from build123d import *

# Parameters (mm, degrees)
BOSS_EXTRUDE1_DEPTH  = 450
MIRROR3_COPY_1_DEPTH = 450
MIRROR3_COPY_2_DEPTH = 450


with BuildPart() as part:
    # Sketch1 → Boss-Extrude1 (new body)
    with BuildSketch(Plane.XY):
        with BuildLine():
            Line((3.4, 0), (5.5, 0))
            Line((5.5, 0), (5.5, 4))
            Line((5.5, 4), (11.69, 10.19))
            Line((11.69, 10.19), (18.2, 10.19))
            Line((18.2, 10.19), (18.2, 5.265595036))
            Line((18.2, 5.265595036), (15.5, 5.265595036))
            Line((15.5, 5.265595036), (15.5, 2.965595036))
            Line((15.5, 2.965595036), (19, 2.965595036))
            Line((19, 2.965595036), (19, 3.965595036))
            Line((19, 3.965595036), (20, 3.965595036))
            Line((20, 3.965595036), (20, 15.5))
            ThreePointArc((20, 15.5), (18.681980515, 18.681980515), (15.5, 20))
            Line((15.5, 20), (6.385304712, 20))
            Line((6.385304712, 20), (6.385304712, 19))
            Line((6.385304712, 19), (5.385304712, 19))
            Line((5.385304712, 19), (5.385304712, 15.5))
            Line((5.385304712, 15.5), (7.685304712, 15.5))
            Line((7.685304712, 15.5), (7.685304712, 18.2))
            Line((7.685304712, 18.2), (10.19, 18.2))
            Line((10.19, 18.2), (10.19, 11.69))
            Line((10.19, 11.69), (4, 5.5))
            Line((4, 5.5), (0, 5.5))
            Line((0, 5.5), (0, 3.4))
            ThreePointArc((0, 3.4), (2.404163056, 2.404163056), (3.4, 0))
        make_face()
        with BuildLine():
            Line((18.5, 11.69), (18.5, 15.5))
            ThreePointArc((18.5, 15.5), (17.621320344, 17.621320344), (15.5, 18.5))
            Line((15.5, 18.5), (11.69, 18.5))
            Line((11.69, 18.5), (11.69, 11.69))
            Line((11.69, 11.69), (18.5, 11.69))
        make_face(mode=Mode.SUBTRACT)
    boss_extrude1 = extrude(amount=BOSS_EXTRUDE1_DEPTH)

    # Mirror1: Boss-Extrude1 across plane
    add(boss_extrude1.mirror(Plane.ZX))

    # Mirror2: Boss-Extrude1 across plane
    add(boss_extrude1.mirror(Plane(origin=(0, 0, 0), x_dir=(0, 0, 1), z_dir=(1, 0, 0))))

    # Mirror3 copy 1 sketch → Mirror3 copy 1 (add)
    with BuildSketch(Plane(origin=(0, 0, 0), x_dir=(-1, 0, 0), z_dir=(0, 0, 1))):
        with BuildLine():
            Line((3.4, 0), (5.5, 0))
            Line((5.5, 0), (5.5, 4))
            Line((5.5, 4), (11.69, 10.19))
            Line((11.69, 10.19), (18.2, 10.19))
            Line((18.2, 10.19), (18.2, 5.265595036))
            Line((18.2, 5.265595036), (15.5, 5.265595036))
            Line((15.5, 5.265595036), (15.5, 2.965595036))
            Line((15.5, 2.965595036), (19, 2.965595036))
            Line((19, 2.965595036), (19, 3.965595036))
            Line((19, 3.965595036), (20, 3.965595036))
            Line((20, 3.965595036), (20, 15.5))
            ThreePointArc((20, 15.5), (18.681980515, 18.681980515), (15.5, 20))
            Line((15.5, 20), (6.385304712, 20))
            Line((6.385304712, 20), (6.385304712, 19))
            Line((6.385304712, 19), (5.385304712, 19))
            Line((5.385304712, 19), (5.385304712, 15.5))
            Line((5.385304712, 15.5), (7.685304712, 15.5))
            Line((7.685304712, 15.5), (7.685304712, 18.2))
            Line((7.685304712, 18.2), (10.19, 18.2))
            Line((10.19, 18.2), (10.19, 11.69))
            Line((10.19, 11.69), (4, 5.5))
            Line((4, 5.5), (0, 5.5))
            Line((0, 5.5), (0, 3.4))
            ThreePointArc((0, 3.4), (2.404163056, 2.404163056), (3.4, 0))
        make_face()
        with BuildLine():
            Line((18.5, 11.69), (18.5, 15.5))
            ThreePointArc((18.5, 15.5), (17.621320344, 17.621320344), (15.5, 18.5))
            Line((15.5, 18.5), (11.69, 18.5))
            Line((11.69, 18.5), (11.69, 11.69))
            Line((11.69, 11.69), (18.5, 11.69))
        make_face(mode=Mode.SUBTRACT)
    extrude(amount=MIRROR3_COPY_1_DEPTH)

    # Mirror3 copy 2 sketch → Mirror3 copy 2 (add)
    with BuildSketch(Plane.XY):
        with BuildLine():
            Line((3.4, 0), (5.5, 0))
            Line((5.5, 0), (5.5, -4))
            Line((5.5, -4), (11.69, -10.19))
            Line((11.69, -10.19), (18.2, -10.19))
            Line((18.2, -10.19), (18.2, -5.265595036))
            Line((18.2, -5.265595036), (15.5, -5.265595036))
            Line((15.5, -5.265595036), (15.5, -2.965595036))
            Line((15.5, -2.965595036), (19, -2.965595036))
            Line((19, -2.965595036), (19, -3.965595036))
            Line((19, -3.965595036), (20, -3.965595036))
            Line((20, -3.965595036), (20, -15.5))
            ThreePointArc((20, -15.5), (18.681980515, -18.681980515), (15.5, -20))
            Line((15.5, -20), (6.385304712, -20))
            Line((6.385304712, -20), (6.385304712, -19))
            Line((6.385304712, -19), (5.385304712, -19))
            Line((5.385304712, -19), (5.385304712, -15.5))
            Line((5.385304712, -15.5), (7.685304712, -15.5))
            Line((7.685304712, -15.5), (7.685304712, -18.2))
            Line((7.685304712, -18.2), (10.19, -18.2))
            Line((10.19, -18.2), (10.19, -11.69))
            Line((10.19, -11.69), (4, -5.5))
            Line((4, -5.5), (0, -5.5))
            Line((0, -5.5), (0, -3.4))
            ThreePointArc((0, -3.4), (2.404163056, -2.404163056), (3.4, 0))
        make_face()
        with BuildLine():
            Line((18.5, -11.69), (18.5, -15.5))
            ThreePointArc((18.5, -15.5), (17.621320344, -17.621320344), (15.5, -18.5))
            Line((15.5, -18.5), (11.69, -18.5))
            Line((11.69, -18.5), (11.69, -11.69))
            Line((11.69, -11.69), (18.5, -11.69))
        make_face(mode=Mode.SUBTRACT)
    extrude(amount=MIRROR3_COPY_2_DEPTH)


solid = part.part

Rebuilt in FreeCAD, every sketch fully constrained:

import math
import FreeCAD as App
import Part
import Sketcher
Q = App.Units.Quantity

doc = App.newDocument("Part")
params = doc.addObject("Spreadsheet::Sheet", "Params")
for row, (alias, value) in enumerate([
    ("sketch1_radius", "3 mm"),
    ("sketch1_radius2", "4.5 mm"),
    ("sketch1_radius3", "3.4 mm"),
    ("sketch1_width", "1 mm"),
    ("sketch1_width2", "4 mm"),
    ("pad1_length", "450 mm"),
    ("sketch2_radius", "3 mm"),
    ("sketch2_radius2", "4.5 mm"),
    ("sketch2_radius3", "3.4 mm"),
    ("sketch2_width", "1 mm"),
    ("sketch2_width2", "4 mm"),
    ("pad2_length", "450 mm"),
    ("sketch3_radius", "3 mm"),
    ("sketch3_radius2", "3.4 mm"),
    ("sketch3_radius3", "4.5 mm"),
    ("sketch3_width", "4 mm"),
    ("sketch3_width2", "1 mm"),
    ("pad3_length", "450 mm"),
], start=1):
    params.set(f"A{row}", alias)
    params.set(f"B{row}", "=" + value)
    params.setAlias(f"B{row}", alias)

body = doc.addObject("PartDesign::Body", "Body")

# Sketch on XY plane
sketch1 = body.newObject("Sketcher::SketchObject", "Sketch")
sketch1.AttachmentSupport = (doc.getObject("XY_Plane"), [""])
sketch1.MapMode = "FlatFace"
sketch1.addGeometry([
    Part.LineSegment(App.Vector(3.4, 0, 0), App.Vector(5.5, 0, 0)),  # 0
    Part.LineSegment(App.Vector(5.5, 0, 0), App.Vector(5.5, 4, 0)),  # 1
    Part.LineSegment(App.Vector(5.5, 4, 0), App.Vector(11.69, 10.19, 0)),  # 2
    Part.LineSegment(App.Vector(11.69, 10.19, 0), App.Vector(18.2, 10.19, 0)),  # 3
    Part.LineSegment(App.Vector(18.2, 10.19, 0), App.Vector(18.2, 5.265595, 0)),  # 4
    Part.LineSegment(App.Vector(18.2, 5.265595, 0), App.Vector(15.5, 5.265595, 0)),  # 5
    Part.LineSegment(App.Vector(15.5, 5.265595, 0), App.Vector(15.5, 2.965595, 0)),  # 6
    Part.LineSegment(App.Vector(15.5, 2.965595, 0), App.Vector(19, 2.965595, 0)),  # 7
    Part.LineSegment(App.Vector(19, 2.965595, 0), App.Vector(19, 3.965595, 0)),  # 8
    Part.LineSegment(App.Vector(19, 3.965595, 0), App.Vector(20, 3.965595, 0)),  # 9
    Part.LineSegment(App.Vector(20, 3.965595, 0), App.Vector(20, 15.5, 0)),  # 10
    Part.ArcOfCircle(Part.Circle(App.Vector(15.5, 15.5, 0), App.Vector(0, 0, 1), 4.5), math.radians(0), math.radians(90)),  # 11
    Part.LineSegment(App.Vector(15.5, 20, 0), App.Vector(6.385305, 20, 0)),  # 12
    Part.LineSegment(App.Vector(6.385305, 20, 0), App.Vector(6.385305, 19, 0)),  # 13
    Part.LineSegment(App.Vector(6.385305, 19, 0), App.Vector(5.385305, 19, 0)),  # 14
    Part.LineSegment(App.Vector(5.385305, 19, 0), App.Vector(5.385305, 15.5, 0)),  # 15
    Part.LineSegment(App.Vector(5.385305, 15.5, 0), App.Vector(7.685305, 15.5, 0)),  # 16
    Part.LineSegment(App.Vector(7.685305, 15.5, 0), App.Vector(7.685305, 18.2, 0)),  # 17
    Part.LineSegment(App.Vector(7.685305, 18.2, 0), App.Vector(10.19, 18.2, 0)),  # 18
    Part.LineSegment(App.Vector(10.19, 18.2, 0), App.Vector(10.19, 11.69, 0)),  # 19
    Part.LineSegment(App.Vector(10.19, 11.69, 0), App.Vector(4, 5.5, 0)),  # 20
    Part.LineSegment(App.Vector(4, 5.5, 0), App.Vector(0, 5.5, 0)),  # 21
    Part.LineSegment(App.Vector(0, 5.5, 0), App.Vector(0, 3.4, 0)),  # 22
    Part.ArcOfCircle(Part.Circle(App.Vector(0, 0, 0), App.Vector(0, 0, 1), 3.4), math.radians(0), math.radians(90)),  # 23
    Part.LineSegment(App.Vector(18.5, 15.5, 0), App.Vector(18.5, 11.69, 0)),  # 24
    Part.LineSegment(App.Vector(18.5, 11.69, 0), App.Vector(11.69, 11.69, 0)),  # 25
    Part.LineSegment(App.Vector(11.69, 11.69, 0), App.Vector(11.69, 18.5, 0)),  # 26
    Part.LineSegment(App.Vector(11.69, 18.5, 0), App.Vector(15.5, 18.5, 0)),  # 27
    Part.ArcOfCircle(Part.Circle(App.Vector(15.5, 15.5, 0), App.Vector(0, 0, 1), 3), math.radians(0), math.radians(90)),  # 28
], False)
sketch1.addConstraint([
    Sketcher.Constraint("Coincident", 0, 2, 1, 1),
    Sketcher.Constraint("Coincident", 1, 2, 2, 1),
    Sketcher.Constraint("Coincident", 2, 2, 3, 1),
    Sketcher.Constraint("Coincident", 3, 2, 4, 1),
    Sketcher.Constraint("Coincident", 4, 2, 5, 1),
    Sketcher.Constraint("Coincident", 5, 2, 6, 1),
    Sketcher.Constraint("Coincident", 6, 2, 7, 1),
    Sketcher.Constraint("Coincident", 7, 2, 8, 1),
    Sketcher.Constraint("Coincident", 8, 2, 9, 1),
    Sketcher.Constraint("Coincident", 9, 2, 10, 1),
    Sketcher.Constraint("Tangent", 10, 2, 11, 1),
    Sketcher.Constraint("Tangent", 11, 2, 12, 1),
    Sketcher.Constraint("Coincident", 12, 2, 13, 1),
    Sketcher.Constraint("Coincident", 13, 2, 14, 1),
    Sketcher.Constraint("Coincident", 14, 2, 15, 1),
    Sketcher.Constraint("Coincident", 15, 2, 16, 1),
    Sketcher.Constraint("Coincident", 16, 2, 17, 1),
    Sketcher.Constraint("Coincident", 17, 2, 18, 1),
    Sketcher.Constraint("Coincident", 18, 2, 19, 1),
    Sketcher.Constraint("Coincident", 19, 2, 20, 1),
    Sketcher.Constraint("Coincident", 20, 2, 21, 1),
    Sketcher.Constraint("Coincident", 21, 2, 22, 1),
    Sketcher.Constraint("Coincident", 22, 2, 23, 2),
    Sketcher.Constraint("Coincident", 23, 1, 0, 1),
    Sketcher.Constraint("Coincident", 24, 2, 25, 1),
    Sketcher.Constraint("Coincident", 25, 2, 26, 1),
    Sketcher.Constraint("Coincident", 26, 2, 27, 1),
    Sketcher.Constraint("Tangent", 27, 2, 28, 2),
    Sketcher.Constraint("Tangent", 28, 1, 24, 1),
    Sketcher.Constraint("Horizontal", 0),
    Sketcher.Constraint("Vertical", 1),
    Sketcher.Constraint("Horizontal", 3),
    Sketcher.Constraint("Vertical", 4),
    Sketcher.Constraint("Horizontal", 5),
    Sketcher.Constraint("Vertical", 6),
    Sketcher.Constraint("Horizontal", 7),
    Sketcher.Constraint("Vertical", 8),
    Sketcher.Constraint("Horizontal", 9),
    Sketcher.Constraint("Vertical", 10),
    Sketcher.Constraint("Horizontal", 12),
    Sketcher.Constraint("Vertical", 13),
    Sketcher.Constraint("Horizontal", 14),
    Sketcher.Constraint("Vertical", 15),
    Sketcher.Constraint("Horizontal", 16),
    Sketcher.Constraint("Vertical", 17),
    Sketcher.Constraint("Horizontal", 18),
    Sketcher.Constraint("Vertical", 19),
    Sketcher.Constraint("Horizontal", 21),
    Sketcher.Constraint("Vertical", 22),
    Sketcher.Constraint("Vertical", 24),
    Sketcher.Constraint("Horizontal", 25),
    Sketcher.Constraint("Vertical", 26),
    Sketcher.Constraint("Horizontal", 27),
    Sketcher.Constraint("Coincident", 23, 3, -1, 1),
    Sketcher.Constraint("Coincident", 28, 3, 11, 3),
    Sketcher.Constraint("PointOnObject", 0, 2, -1),
    Sketcher.Constraint("PointOnObject", 21, 2, -2),
    Sketcher.Constraint("Parallel", 2, 20),
    Sketcher.Constraint("Horizontal", 10, 2, 15, 2),
    Sketcher.Constraint("Horizontal", 19, 2, 24, 2),
    Sketcher.Constraint("Vertical", 28, 3, 5, 2),
    Sketcher.Constraint("Vertical", 2, 2, 25, 2),
    Sketcher.Constraint("Equal", 9, 14),
    Sketcher.Constraint("Equal", 21, 1),
    Sketcher.Constraint("Equal", 16, 6),
    Sketcher.Constraint("Equal", 14, 8),
    Sketcher.Constraint("Equal", 8, 13),
    Sketcher.Constraint("Equal", 5, 17),
    Sketcher.Constraint("Equal", 3, 19),
    Sketcher.Constraint("Equal", 0, 22),
    Sketcher.Constraint("Equal", 2, 20),
    Sketcher.Constraint("Radius", 28, 3.0),
    Sketcher.Constraint("Radius", 11, 4.5),
    Sketcher.Constraint("Radius", 23, 3.4),
    Sketcher.Constraint("DistanceX", 9, 1, 9, 2, 1.0),
    Sketcher.Constraint("DistanceX", 21, 2, 21, 1, 4.0),
    Sketcher.Constraint("Angle", 2, Q("45 deg")),
    Sketcher.Constraint("DistanceX", 0, 1, 0, 2, 2.1),
    Sketcher.Constraint("DistanceX", 5, 2, 5, 1, 2.7),
    Sketcher.Constraint("DistanceX", 16, 1, 16, 2, 2.3),
    Sketcher.Constraint("DistanceX", -1, 1, 7, 2, 19.0),
    Sketcher.Constraint("DistanceX", 3, 1, 3, 2, 6.51),
    Sketcher.Constraint("DistanceX", 12, 2, 12, 1, 9.114695),
    Sketcher.Constraint("DistanceY", 4, 2, 4, 1, 4.924405),
])
sketch1.setExpression("Constraints[71]", "Params.sketch1_radius")
sketch1.setExpression("Constraints[72]", "Params.sketch1_radius2")
sketch1.setExpression("Constraints[73]", "Params.sketch1_radius3")
sketch1.setExpression("Constraints[74]", "Params.sketch1_width")
sketch1.setExpression("Constraints[75]", "Params.sketch1_width2")
pad1 = body.newObject("PartDesign::Pad", "Pad")
pad1.Profile = sketch1
pad1.setExpression("Length", "Params.pad1_length")
doc.recompute()

mirrored = body.newObject("PartDesign::Mirrored", "Mirrored")
mirrored.Originals = [pad1]
mirrored.MirrorPlane = (doc.getObject("XZ_Plane"), [""])
body.Tip = mirrored
doc.recompute()

mirrored2 = body.newObject("PartDesign::Mirrored", "Mirrored001")
mirrored2.Originals = [pad1]
mirrored2.MirrorPlane = (doc.getObject("YZ_Plane"), [""])
body.Tip = mirrored2

# Sketch on XY plane
sketch2 = body.newObject("Sketcher::SketchObject", "Sketch001")
sketch2.AttachmentSupport = (doc.getObject("XY_Plane"), [""])
sketch2.MapMode = "FlatFace"
sketch2.addGeometry([
    Part.LineSegment(App.Vector(-3.4, 0, 0), App.Vector(-5.5, 0, 0)),  # 0
    Part.LineSegment(App.Vector(-5.5, 0, 0), App.Vector(-5.5, -4, 0)),  # 1
    Part.LineSegment(App.Vector(-5.5, -4, 0), App.Vector(-11.69, -10.19, 0)),  # 2
    Part.LineSegment(App.Vector(-11.69, -10.19, 0), App.Vector(-18.2, -10.19, 0)),  # 3
    Part.LineSegment(App.Vector(-18.2, -10.19, 0), App.Vector(-18.2, -5.265595, 0)),  # 4
    Part.LineSegment(App.Vector(-18.2, -5.265595, 0), App.Vector(-15.5, -5.265595, 0)),  # 5
    Part.LineSegment(App.Vector(-15.5, -5.265595, 0), App.Vector(-15.5, -2.965595, 0)),  # 6
    Part.LineSegment(App.Vector(-15.5, -2.965595, 0), App.Vector(-19, -2.965595, 0)),  # 7
    Part.LineSegment(App.Vector(-19, -2.965595, 0), App.Vector(-19, -3.965595, 0)),  # 8
    Part.LineSegment(App.Vector(-19, -3.965595, 0), App.Vector(-20, -3.965595, 0)),  # 9
    Part.LineSegment(App.Vector(-20, -3.965595, 0), App.Vector(-20, -15.5, 0)),  # 10
    Part.ArcOfCircle(Part.Circle(App.Vector(-15.5, -15.5, 0), App.Vector(0, 0, 1), 4.5), math.radians(-180), math.radians(-90)),  # 11
    Part.LineSegment(App.Vector(-15.5, -20, 0), App.Vector(-6.385305, -20, 0)),  # 12
    Part.LineSegment(App.Vector(-6.385305, -20, 0), App.Vector(-6.385305, -19, 0)),  # 13
    Part.LineSegment(App.Vector(-6.385305, -19, 0), App.Vector(-5.385305, -19, 0)),  # 14
    Part.LineSegment(App.Vector(-5.385305, -19, 0), App.Vector(-5.385305, -15.5, 0)),  # 15
    Part.LineSegment(App.Vector(-5.385305, -15.5, 0), App.Vector(-7.685305, -15.5, 0)),  # 16
    Part.LineSegment(App.Vector(-7.685305, -15.5, 0), App.Vector(-7.685305, -18.2, 0)),  # 17
    Part.LineSegment(App.Vector(-7.685305, -18.2, 0), App.Vector(-10.19, -18.2, 0)),  # 18
    Part.LineSegment(App.Vector(-10.19, -18.2, 0), App.Vector(-10.19, -11.69, 0)),  # 19
    Part.LineSegment(App.Vector(-10.19, -11.69, 0), App.Vector(-4, -5.5, 0)),  # 20
    Part.LineSegment(App.Vector(-4, -5.5, 0), App.Vector(0, -5.5, 0)),  # 21
    Part.LineSegment(App.Vector(0, -5.5, 0), App.Vector(0, -3.4, 0)),  # 22
    Part.ArcOfCircle(Part.Circle(App.Vector(0, 0, 0), App.Vector(0, 0, 1), 3.4), math.radians(180), math.radians(270)),  # 23
    Part.LineSegment(App.Vector(-18.5, -15.5, 0), App.Vector(-18.5, -11.69, 0)),  # 24
    Part.LineSegment(App.Vector(-18.5, -11.69, 0), App.Vector(-11.69, -11.69, 0)),  # 25
    Part.LineSegment(App.Vector(-11.69, -11.69, 0), App.Vector(-11.69, -18.5, 0)),  # 26
    Part.LineSegment(App.Vector(-11.69, -18.5, 0), App.Vector(-15.5, -18.5, 0)),  # 27
    Part.ArcOfCircle(Part.Circle(App.Vector(-15.5, -15.5, 0), App.Vector(0, 0, 1), 3), math.radians(180), math.radians(270)),  # 28
], False)
sketch2.addConstraint([
    Sketcher.Constraint("Coincident", 0, 2, 1, 1),
    Sketcher.Constraint("Coincident", 1, 2, 2, 1),
    Sketcher.Constraint("Coincident", 2, 2, 3, 1),
    Sketcher.Constraint("Coincident", 3, 2, 4, 1),
    Sketcher.Constraint("Coincident", 4, 2, 5, 1),
    Sketcher.Constraint("Coincident", 5, 2, 6, 1),
    Sketcher.Constraint("Coincident", 6, 2, 7, 1),
    Sketcher.Constraint("Coincident", 7, 2, 8, 1),
    Sketcher.Constraint("Coincident", 8, 2, 9, 1),
    Sketcher.Constraint("Coincident", 9, 2, 10, 1),
    Sketcher.Constraint("Tangent", 10, 2, 11, 1),
    Sketcher.Constraint("Tangent", 11, 2, 12, 1),
    Sketcher.Constraint("Coincident", 12, 2, 13, 1),
    Sketcher.Constraint("Coincident", 13, 2, 14, 1),
    Sketcher.Constraint("Coincident", 14, 2, 15, 1),
    Sketcher.Constraint("Coincident", 15, 2, 16, 1),
    Sketcher.Constraint("Coincident", 16, 2, 17, 1),
    Sketcher.Constraint("Coincident", 17, 2, 18, 1),
    Sketcher.Constraint("Coincident", 18, 2, 19, 1),
    Sketcher.Constraint("Coincident", 19, 2, 20, 1),
    Sketcher.Constraint("Coincident", 20, 2, 21, 1),
    Sketcher.Constraint("Coincident", 21, 2, 22, 1),
    Sketcher.Constraint("Coincident", 22, 2, 23, 2),
    Sketcher.Constraint("Coincident", 23, 1, 0, 1),
    Sketcher.Constraint("Coincident", 24, 2, 25, 1),
    Sketcher.Constraint("Coincident", 25, 2, 26, 1),
    Sketcher.Constraint("Coincident", 26, 2, 27, 1),
    Sketcher.Constraint("Tangent", 27, 2, 28, 2),
    Sketcher.Constraint("Tangent", 28, 1, 24, 1),
    Sketcher.Constraint("Horizontal", 0),
    Sketcher.Constraint("Vertical", 1),
    Sketcher.Constraint("Horizontal", 3),
    Sketcher.Constraint("Vertical", 4),
    Sketcher.Constraint("Horizontal", 5),
    Sketcher.Constraint("Vertical", 6),
    Sketcher.Constraint("Horizontal", 7),
    Sketcher.Constraint("Vertical", 8),
    Sketcher.Constraint("Horizontal", 9),
    Sketcher.Constraint("Vertical", 10),
    Sketcher.Constraint("Horizontal", 12),
    Sketcher.Constraint("Vertical", 13),
    Sketcher.Constraint("Horizontal", 14),
    Sketcher.Constraint("Vertical", 15),
    Sketcher.Constraint("Horizontal", 16),
    Sketcher.Constraint("Vertical", 17),
    Sketcher.Constraint("Horizontal", 18),
    Sketcher.Constraint("Vertical", 19),
    Sketcher.Constraint("Horizontal", 21),
    Sketcher.Constraint("Vertical", 22),
    Sketcher.Constraint("Vertical", 24),
    Sketcher.Constraint("Horizontal", 25),
    Sketcher.Constraint("Vertical", 26),
    Sketcher.Constraint("Horizontal", 27),
    Sketcher.Constraint("Coincident", 23, 3, -1, 1),
    Sketcher.Constraint("Coincident", 28, 3, 11, 3),
    Sketcher.Constraint("PointOnObject", 0, 2, -1),
    Sketcher.Constraint("PointOnObject", 21, 2, -2),
    Sketcher.Constraint("Parallel", 2, 20),
    Sketcher.Constraint("Horizontal", 10, 2, 15, 2),
    Sketcher.Constraint("Horizontal", 19, 2, 24, 2),
    Sketcher.Constraint("Vertical", 28, 3, 5, 2),
    Sketcher.Constraint("Vertical", 2, 2, 25, 2),
    Sketcher.Constraint("Equal", 9, 14),
    Sketcher.Constraint("Equal", 21, 1),
    Sketcher.Constraint("Equal", 16, 6),
    Sketcher.Constraint("Equal", 14, 8),
    Sketcher.Constraint("Equal", 8, 13),
    Sketcher.Constraint("Equal", 5, 17),
    Sketcher.Constraint("Equal", 3, 19),
    Sketcher.Constraint("Equal", 0, 22),
    Sketcher.Constraint("Equal", 2, 20),
    Sketcher.Constraint("Radius", 28, 3.0),
    Sketcher.Constraint("Radius", 11, 4.5),
    Sketcher.Constraint("Radius", 23, 3.4),
    Sketcher.Constraint("DistanceX", 9, 2, 9, 1, 1.0),
    Sketcher.Constraint("DistanceX", 21, 1, 21, 2, 4.0),
    Sketcher.Constraint("Angle", 2, Q("-135 deg")),
    Sketcher.Constraint("DistanceX", 0, 2, 0, 1, 2.1),
    Sketcher.Constraint("DistanceX", 5, 1, 5, 2, 2.7),
    Sketcher.Constraint("DistanceX", 16, 2, 16, 1, 2.3),
    Sketcher.Constraint("DistanceX", 7, 2, -1, 1, 19.0),
    Sketcher.Constraint("DistanceX", 3, 2, 3, 1, 6.51),
    Sketcher.Constraint("DistanceX", 12, 1, 12, 2, 9.114695),
    Sketcher.Constraint("DistanceY", 4, 1, 4, 2, 4.924405),
])
sketch2.setExpression("Constraints[71]", "Params.sketch2_radius")
sketch2.setExpression("Constraints[72]", "Params.sketch2_radius2")
sketch2.setExpression("Constraints[73]", "Params.sketch2_radius3")
sketch2.setExpression("Constraints[74]", "Params.sketch2_width")
sketch2.setExpression("Constraints[75]", "Params.sketch2_width2")
pad2 = body.newObject("PartDesign::Pad", "Pad001")
pad2.Profile = sketch2
pad2.setExpression("Length", "Params.pad2_length")

# Sketch on XY plane
sketch3 = body.newObject("Sketcher::SketchObject", "Sketch002")
sketch3.AttachmentSupport = (doc.getObject("XY_Plane"), [""])
sketch3.MapMode = "FlatFace"
sketch3.addGeometry([
    Part.LineSegment(App.Vector(5.5, 0, 0), App.Vector(3.4, 0, 0)),  # 0
    Part.ArcOfCircle(Part.Circle(App.Vector(0, 0, 0), App.Vector(0, 0, 1), 3.4), math.radians(-90), math.radians(0)),  # 1
    Part.LineSegment(App.Vector(0, -3.4, 0), App.Vector(0, -5.5, 0)),  # 2
    Part.LineSegment(App.Vector(0, -5.5, 0), App.Vector(4, -5.5, 0)),  # 3
    Part.LineSegment(App.Vector(4, -5.5, 0), App.Vector(10.19, -11.69, 0)),  # 4
    Part.LineSegment(App.Vector(10.19, -11.69, 0), App.Vector(10.19, -18.2, 0)),  # 5
    Part.LineSegment(App.Vector(10.19, -18.2, 0), App.Vector(7.685305, -18.2, 0)),  # 6
    Part.LineSegment(App.Vector(7.685305, -18.2, 0), App.Vector(7.685305, -15.5, 0)),  # 7
    Part.LineSegment(App.Vector(7.685305, -15.5, 0), App.Vector(5.385305, -15.5, 0)),  # 8
    Part.LineSegment(App.Vector(5.385305, -15.5, 0), App.Vector(5.385305, -19, 0)),  # 9
    Part.LineSegment(App.Vector(5.385305, -19, 0), App.Vector(6.385305, -19, 0)),  # 10
    Part.LineSegment(App.Vector(6.385305, -19, 0), App.Vector(6.385305, -20, 0)),  # 11
    Part.LineSegment(App.Vector(6.385305, -20, 0), App.Vector(15.5, -20, 0)),  # 12
    Part.ArcOfCircle(Part.Circle(App.Vector(15.5, -15.5, 0), App.Vector(0, 0, 1), 4.5), math.radians(-90), math.radians(0)),  # 13
    Part.LineSegment(App.Vector(20, -15.5, 0), App.Vector(20, -3.965595, 0)),  # 14
    Part.LineSegment(App.Vector(20, -3.965595, 0), App.Vector(19, -3.965595, 0)),  # 15
    Part.LineSegment(App.Vector(19, -3.965595, 0), App.Vector(19, -2.965595, 0)),  # 16
    Part.LineSegment(App.Vector(19, -2.965595, 0), App.Vector(15.5, -2.965595, 0)),  # 17
    Part.LineSegment(App.Vector(15.5, -2.965595, 0), App.Vector(15.5, -5.265595, 0)),  # 18
    Part.LineSegment(App.Vector(15.5, -5.265595, 0), App.Vector(18.2, -5.265595, 0)),  # 19
    Part.LineSegment(App.Vector(18.2, -5.265595, 0), App.Vector(18.2, -10.19, 0)),  # 20
    Part.LineSegment(App.Vector(18.2, -10.19, 0), App.Vector(11.69, -10.19, 0)),  # 21
    Part.LineSegment(App.Vector(11.69, -10.19, 0), App.Vector(5.5, -4, 0)),  # 22
    Part.LineSegment(App.Vector(5.5, -4, 0), App.Vector(5.5, 0, 0)),  # 23
    Part.LineSegment(App.Vector(18.5, -11.69, 0), App.Vector(18.5, -15.5, 0)),  # 24
    Part.ArcOfCircle(Part.Circle(App.Vector(15.5, -15.5, 0), App.Vector(0, 0, 1), 3), math.radians(-90), math.radians(0)),  # 25
    Part.LineSegment(App.Vector(15.5, -18.5, 0), App.Vector(11.69, -18.5, 0)),  # 26
    Part.LineSegment(App.Vector(11.69, -18.5, 0), App.Vector(11.69, -11.69, 0)),  # 27
    Part.LineSegment(App.Vector(11.69, -11.69, 0), App.Vector(18.5, -11.69, 0)),  # 28
], False)
sketch3.addConstraint([
    Sketcher.Constraint("Coincident", 0, 2, 1, 2),
    Sketcher.Constraint("Coincident", 1, 1, 2, 1),
    Sketcher.Constraint("Coincident", 2, 2, 3, 1),
    Sketcher.Constraint("Coincident", 3, 2, 4, 1),
    Sketcher.Constraint("Coincident", 4, 2, 5, 1),
    Sketcher.Constraint("Coincident", 5, 2, 6, 1),
    Sketcher.Constraint("Coincident", 6, 2, 7, 1),
    Sketcher.Constraint("Coincident", 7, 2, 8, 1),
    Sketcher.Constraint("Coincident", 8, 2, 9, 1),
    Sketcher.Constraint("Coincident", 9, 2, 10, 1),
    Sketcher.Constraint("Coincident", 10, 2, 11, 1),
    Sketcher.Constraint("Coincident", 11, 2, 12, 1),
    Sketcher.Constraint("Tangent", 12, 2, 13, 1),
    Sketcher.Constraint("Tangent", 13, 2, 14, 1),
    Sketcher.Constraint("Coincident", 14, 2, 15, 1),
    Sketcher.Constraint("Coincident", 15, 2, 16, 1),
    Sketcher.Constraint("Coincident", 16, 2, 17, 1),
    Sketcher.Constraint("Coincident", 17, 2, 18, 1),
    Sketcher.Constraint("Coincident", 18, 2, 19, 1),
    Sketcher.Constraint("Coincident", 19, 2, 20, 1),
    Sketcher.Constraint("Coincident", 20, 2, 21, 1),
    Sketcher.Constraint("Coincident", 21, 2, 22, 1),
    Sketcher.Constraint("Coincident", 22, 2, 23, 1),
    Sketcher.Constraint("Coincident", 23, 2, 0, 1),
    Sketcher.Constraint("Tangent", 24, 2, 25, 2),
    Sketcher.Constraint("Tangent", 25, 1, 26, 1),
    Sketcher.Constraint("Coincident", 26, 2, 27, 1),
    Sketcher.Constraint("Coincident", 27, 2, 28, 1),
    Sketcher.Constraint("Coincident", 28, 2, 24, 1),
    Sketcher.Constraint("Horizontal", 0),
    Sketcher.Constraint("Vertical", 2),
    Sketcher.Constraint("Horizontal", 3),
    Sketcher.Constraint("Vertical", 5),
    Sketcher.Constraint("Horizontal", 6),
    Sketcher.Constraint("Vertical", 7),
    Sketcher.Constraint("Horizontal", 8),
    Sketcher.Constraint("Vertical", 9),
    Sketcher.Constraint("Horizontal", 10),
    Sketcher.Constraint("Vertical", 11),
    Sketcher.Constraint("Horizontal", 12),
    Sketcher.Constraint("Vertical", 14),
    Sketcher.Constraint("Horizontal", 15),
    Sketcher.Constraint("Vertical", 16),
    Sketcher.Constraint("Horizontal", 17),
    Sketcher.Constraint("Vertical", 18),
    Sketcher.Constraint("Horizontal", 19),
    Sketcher.Constraint("Vertical", 20),
    Sketcher.Constraint("Horizontal", 21),
    Sketcher.Constraint("Vertical", 23),
    Sketcher.Constraint("Vertical", 24),
    Sketcher.Constraint("Horizontal", 26),
    Sketcher.Constraint("Vertical", 27),
    Sketcher.Constraint("Horizontal", 28),
    Sketcher.Constraint("Coincident", 1, 3, -1, 1),
    Sketcher.Constraint("Coincident", 25, 3, 13, 3),
    Sketcher.Constraint("PointOnObject", 0, 2, -1),
    Sketcher.Constraint("PointOnObject", 1, 1, -2),
    Sketcher.Constraint("Parallel", 4, 22),
    Sketcher.Constraint("Horizontal", 25, 3, 7, 2),
    Sketcher.Constraint("Horizontal", 4, 2, 27, 2),
    Sketcher.Constraint("Vertical", 12, 2, 17, 2),
    Sketcher.Constraint("Vertical", 21, 2, 26, 2),
    Sketcher.Constraint("Equal", 10, 15),
    Sketcher.Constraint("Equal", 0, 2),
    Sketcher.Constraint("Equal", 21, 5),
    Sketcher.Constraint("Equal", 19, 7),
    Sketcher.Constraint("Equal", 17, 9),
    Sketcher.Constraint("Equal", 11, 16),
    Sketcher.Constraint("Equal", 8, 18),
    Sketcher.Constraint("Equal", 3, 23),
    Sketcher.Constraint("Equal", 4, 22),
    Sketcher.Constraint("Radius", 25, 3.0),
    Sketcher.Constraint("Radius", 1, 3.4),
    Sketcher.Constraint("Radius", 13, 4.5),
    Sketcher.Constraint("DistanceX", 3, 1, 3, 2, 4.0),
    Sketcher.Constraint("DistanceX", 10, 1, 10, 2, 1.0),
    Sketcher.Constraint("Angle", 4, Q("-45 deg")),
    Sketcher.Constraint("DistanceX", 0, 2, 0, 1, 2.1),
    Sketcher.Constraint("DistanceX", 8, 2, 8, 1, 2.3),
    Sketcher.Constraint("DistanceX", 19, 1, 19, 2, 2.7),
    Sketcher.Constraint("DistanceY", 9, 2, -1, 1, 19.0),
    Sketcher.Constraint("DistanceX", 21, 2, 21, 1, 6.51),
    Sketcher.Constraint("DistanceX", 6, 2, 6, 1, 2.504695),
    Sketcher.Constraint("DistanceY", 14, 1, 14, 2, 11.534405),
])
sketch3.setExpression("Constraints[71]", "Params.sketch3_radius")
sketch3.setExpression("Constraints[72]", "Params.sketch3_radius2")
sketch3.setExpression("Constraints[73]", "Params.sketch3_radius3")
sketch3.setExpression("Constraints[74]", "Params.sketch3_width")
sketch3.setExpression("Constraints[75]", "Params.sketch3_width2")
pad3 = body.newObject("PartDesign::Pad", "Pad002")
pad3.Profile = sketch3
pad3.setExpression("Length", "Params.pad3_length")

doc.recompute()
